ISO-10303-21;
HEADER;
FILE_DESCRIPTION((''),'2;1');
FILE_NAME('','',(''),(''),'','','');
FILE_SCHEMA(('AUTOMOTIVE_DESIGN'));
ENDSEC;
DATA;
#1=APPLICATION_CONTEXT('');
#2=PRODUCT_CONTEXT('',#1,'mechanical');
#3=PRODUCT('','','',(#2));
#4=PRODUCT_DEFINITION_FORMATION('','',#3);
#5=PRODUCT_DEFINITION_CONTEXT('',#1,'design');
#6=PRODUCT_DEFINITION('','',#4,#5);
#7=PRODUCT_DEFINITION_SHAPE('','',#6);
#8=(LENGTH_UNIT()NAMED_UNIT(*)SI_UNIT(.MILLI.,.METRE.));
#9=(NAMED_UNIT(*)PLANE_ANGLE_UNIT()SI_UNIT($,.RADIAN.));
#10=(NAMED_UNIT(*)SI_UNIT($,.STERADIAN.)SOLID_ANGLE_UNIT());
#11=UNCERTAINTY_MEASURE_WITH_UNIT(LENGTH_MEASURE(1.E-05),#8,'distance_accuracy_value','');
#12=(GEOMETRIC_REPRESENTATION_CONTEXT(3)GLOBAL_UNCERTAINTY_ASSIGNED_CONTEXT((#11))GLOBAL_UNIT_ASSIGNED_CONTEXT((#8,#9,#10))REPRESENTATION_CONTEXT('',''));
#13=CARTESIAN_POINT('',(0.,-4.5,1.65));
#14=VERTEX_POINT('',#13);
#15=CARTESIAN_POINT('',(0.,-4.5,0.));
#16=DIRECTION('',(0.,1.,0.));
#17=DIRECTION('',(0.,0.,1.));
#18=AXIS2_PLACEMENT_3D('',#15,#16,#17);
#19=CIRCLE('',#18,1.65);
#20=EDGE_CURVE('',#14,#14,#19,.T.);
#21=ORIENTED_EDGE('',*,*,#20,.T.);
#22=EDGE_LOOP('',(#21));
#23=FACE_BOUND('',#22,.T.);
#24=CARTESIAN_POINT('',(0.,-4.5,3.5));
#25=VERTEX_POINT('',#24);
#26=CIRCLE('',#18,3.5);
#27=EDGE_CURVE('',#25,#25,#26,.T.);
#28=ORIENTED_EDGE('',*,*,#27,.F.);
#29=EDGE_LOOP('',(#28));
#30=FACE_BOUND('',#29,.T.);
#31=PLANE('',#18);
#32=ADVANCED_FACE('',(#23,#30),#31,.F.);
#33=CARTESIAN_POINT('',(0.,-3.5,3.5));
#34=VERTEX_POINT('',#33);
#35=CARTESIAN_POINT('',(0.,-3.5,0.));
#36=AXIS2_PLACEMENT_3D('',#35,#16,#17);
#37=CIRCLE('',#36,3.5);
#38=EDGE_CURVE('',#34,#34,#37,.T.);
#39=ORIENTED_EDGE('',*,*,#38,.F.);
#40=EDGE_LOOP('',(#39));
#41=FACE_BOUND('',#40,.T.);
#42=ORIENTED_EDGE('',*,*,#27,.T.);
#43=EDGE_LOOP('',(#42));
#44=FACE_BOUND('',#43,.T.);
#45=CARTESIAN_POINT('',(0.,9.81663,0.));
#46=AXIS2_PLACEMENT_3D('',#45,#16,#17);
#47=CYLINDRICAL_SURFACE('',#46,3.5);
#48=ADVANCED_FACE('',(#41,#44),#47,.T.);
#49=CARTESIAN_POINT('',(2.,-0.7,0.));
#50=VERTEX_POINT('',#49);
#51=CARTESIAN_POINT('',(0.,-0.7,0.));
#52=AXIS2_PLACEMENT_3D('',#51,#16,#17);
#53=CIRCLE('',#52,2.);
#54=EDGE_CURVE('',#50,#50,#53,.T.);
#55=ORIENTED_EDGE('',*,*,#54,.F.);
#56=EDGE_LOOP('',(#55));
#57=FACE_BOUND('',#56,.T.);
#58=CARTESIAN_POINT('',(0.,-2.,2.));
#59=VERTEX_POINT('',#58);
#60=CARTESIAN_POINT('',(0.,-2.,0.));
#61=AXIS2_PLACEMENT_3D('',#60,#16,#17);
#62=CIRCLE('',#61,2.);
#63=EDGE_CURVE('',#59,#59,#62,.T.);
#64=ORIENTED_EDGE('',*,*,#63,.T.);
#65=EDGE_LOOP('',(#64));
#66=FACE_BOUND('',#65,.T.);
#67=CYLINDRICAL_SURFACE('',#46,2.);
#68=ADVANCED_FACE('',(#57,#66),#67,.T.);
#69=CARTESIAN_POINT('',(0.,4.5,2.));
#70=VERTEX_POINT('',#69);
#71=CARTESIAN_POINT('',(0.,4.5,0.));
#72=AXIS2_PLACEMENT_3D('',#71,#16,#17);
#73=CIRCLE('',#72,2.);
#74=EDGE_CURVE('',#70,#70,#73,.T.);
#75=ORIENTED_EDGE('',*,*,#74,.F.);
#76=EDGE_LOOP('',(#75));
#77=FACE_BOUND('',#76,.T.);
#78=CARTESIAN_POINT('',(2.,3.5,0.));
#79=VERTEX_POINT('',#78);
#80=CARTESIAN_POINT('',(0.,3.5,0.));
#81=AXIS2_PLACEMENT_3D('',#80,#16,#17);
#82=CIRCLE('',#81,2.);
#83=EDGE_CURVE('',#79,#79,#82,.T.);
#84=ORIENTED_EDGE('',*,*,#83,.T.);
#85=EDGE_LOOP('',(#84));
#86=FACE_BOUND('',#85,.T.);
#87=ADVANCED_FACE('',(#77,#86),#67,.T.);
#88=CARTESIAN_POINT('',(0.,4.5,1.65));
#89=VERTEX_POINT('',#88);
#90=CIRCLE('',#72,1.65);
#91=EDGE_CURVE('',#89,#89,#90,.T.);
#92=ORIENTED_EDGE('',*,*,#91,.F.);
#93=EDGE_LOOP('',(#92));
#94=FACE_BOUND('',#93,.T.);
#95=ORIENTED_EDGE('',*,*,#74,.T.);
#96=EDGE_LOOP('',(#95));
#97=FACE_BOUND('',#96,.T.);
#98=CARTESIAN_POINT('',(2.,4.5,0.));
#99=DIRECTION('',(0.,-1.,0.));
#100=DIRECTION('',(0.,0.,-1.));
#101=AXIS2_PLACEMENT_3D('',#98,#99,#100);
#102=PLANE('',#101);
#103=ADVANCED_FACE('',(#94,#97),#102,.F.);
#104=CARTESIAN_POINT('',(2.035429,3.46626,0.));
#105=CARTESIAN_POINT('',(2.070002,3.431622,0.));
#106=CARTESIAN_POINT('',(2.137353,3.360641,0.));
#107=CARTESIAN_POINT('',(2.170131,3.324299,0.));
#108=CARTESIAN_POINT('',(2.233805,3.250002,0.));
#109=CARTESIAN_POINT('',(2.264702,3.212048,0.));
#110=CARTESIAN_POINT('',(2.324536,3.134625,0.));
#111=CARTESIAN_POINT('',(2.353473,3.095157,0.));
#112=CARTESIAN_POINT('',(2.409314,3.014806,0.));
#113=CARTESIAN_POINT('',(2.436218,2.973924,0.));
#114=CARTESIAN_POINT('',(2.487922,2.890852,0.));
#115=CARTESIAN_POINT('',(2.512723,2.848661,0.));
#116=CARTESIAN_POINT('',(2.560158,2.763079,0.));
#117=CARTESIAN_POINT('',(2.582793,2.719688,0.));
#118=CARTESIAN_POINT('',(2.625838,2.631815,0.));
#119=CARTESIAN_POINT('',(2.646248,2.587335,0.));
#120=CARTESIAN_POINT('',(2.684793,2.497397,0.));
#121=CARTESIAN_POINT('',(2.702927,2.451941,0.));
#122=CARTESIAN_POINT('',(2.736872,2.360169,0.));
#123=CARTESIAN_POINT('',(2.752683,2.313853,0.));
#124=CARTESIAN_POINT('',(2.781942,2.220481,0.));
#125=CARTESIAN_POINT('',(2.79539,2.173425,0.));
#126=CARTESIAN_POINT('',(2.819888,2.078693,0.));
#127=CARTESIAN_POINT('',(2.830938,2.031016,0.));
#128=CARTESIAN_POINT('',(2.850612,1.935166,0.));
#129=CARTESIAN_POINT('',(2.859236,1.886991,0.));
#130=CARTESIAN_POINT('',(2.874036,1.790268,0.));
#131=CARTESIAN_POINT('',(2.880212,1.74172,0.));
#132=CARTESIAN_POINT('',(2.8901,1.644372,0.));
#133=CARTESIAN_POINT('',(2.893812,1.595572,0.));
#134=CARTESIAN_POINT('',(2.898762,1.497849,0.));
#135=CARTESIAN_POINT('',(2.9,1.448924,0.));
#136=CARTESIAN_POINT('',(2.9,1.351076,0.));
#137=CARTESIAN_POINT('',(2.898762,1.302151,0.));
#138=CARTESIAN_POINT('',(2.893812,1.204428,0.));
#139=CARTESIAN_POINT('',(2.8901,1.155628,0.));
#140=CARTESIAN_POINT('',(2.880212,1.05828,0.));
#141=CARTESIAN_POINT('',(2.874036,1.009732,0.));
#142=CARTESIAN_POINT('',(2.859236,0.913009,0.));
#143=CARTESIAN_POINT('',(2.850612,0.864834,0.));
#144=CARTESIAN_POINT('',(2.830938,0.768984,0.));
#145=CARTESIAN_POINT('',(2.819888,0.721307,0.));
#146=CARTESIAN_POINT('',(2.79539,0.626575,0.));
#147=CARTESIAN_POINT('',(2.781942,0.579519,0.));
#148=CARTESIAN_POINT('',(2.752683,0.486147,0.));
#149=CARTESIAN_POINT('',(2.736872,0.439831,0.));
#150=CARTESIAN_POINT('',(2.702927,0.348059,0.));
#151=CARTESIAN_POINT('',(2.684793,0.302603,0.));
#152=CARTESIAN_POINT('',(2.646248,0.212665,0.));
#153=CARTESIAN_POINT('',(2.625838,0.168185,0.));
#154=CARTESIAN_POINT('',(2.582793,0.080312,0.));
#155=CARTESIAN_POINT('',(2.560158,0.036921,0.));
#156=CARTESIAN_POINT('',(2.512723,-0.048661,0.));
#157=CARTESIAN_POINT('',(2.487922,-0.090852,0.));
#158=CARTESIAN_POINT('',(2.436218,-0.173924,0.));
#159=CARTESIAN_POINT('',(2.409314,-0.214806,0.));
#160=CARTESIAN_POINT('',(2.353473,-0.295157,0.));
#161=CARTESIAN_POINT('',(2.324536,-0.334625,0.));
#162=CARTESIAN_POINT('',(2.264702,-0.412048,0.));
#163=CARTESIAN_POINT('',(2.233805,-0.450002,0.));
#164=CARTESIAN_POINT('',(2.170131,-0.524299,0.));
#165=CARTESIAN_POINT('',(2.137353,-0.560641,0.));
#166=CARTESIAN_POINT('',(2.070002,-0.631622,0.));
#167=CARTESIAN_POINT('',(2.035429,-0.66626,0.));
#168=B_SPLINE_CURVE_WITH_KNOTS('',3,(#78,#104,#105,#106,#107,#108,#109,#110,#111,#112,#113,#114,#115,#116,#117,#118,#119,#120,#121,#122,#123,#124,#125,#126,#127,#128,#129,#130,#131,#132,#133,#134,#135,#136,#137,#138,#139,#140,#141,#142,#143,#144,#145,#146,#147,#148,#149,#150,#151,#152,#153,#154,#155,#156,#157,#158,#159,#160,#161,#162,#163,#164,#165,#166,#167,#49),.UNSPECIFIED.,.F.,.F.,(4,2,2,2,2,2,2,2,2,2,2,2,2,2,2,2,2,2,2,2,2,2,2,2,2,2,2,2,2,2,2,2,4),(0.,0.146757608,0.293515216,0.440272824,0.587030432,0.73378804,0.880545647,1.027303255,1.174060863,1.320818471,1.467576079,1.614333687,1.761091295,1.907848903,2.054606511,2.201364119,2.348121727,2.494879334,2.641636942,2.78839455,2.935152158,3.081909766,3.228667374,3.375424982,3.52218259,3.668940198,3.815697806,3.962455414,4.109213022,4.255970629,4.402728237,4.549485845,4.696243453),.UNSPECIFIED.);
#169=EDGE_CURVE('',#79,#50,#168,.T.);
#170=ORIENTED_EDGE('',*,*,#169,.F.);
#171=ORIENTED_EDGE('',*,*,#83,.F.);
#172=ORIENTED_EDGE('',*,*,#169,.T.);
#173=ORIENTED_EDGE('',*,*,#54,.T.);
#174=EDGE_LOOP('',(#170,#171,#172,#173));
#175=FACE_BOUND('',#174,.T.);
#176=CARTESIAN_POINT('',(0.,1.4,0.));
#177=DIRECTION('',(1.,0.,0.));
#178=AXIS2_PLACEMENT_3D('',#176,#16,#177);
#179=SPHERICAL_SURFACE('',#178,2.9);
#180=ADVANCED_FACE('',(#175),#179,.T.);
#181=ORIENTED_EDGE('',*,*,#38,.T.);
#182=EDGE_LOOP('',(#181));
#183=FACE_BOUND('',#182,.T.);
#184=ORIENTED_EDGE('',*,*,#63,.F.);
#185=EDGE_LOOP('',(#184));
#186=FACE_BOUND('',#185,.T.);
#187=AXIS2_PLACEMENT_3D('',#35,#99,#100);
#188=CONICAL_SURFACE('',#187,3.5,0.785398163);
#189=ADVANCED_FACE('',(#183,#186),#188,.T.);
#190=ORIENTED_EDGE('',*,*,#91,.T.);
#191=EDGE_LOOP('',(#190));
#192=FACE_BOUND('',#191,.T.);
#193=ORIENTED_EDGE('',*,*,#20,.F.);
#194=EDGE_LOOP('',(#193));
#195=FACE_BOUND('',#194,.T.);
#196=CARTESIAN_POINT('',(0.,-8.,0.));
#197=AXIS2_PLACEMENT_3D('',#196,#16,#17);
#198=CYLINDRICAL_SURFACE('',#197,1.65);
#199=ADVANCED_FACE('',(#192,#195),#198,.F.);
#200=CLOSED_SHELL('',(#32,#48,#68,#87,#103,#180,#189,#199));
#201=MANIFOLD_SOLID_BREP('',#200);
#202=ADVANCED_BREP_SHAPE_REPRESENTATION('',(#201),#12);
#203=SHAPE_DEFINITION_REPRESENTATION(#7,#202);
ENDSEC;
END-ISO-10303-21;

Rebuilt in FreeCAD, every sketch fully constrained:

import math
import FreeCAD as App
import Part
import Sketcher

V = App.Vector
Q = App.Units.Quantity

doc = App.newDocument("Part")
params = doc.addObject("Spreadsheet::Sheet", "Params")
for row, (alias, value) in enumerate([
    ("sketch1_radius", "2.9 mm"),
    ("sketch1_width", "2 mm"),
    ("sketch1_height", "9 mm"),
    ("sketch1_height2", "1 mm"),
    ("sketch1_width2", "3.5 mm"),
    ("revolution_angle", "360 deg"),
    ("sketch2_diameter", "3.3 mm"),
    ("pocket1_length", "12.5 mm"),
], start=1):
    params.set(f"A{row}", alias)
    params.set(f"B{row}", "=" + value)
    params.setAlias(f"B{row}", alias)

body = doc.addObject("PartDesign::Body", "Body")

sketch1 = body.newObject("Sketcher::SketchObject", "Sketch")
sketch1.AttachmentSupport = (doc.getObject("XY_Plane"), [""])
sketch1.MapMode = "FlatFace"
sketch1.addGeometry([
    Part.LineSegment(V(0, 4.5, 0), V(0, -4.5, 0)),
    Part.LineSegment(V(0, -4.5, 0), V(3.5, -4.5, 0)),
    Part.LineSegment(V(3.5, -4.5, 0), V(3.5, -3.5, 0)),
    Part.LineSegment(V(3.5, -3.5, 0), V(2, -2, 0)),
    Part.LineSegment(V(2, -2, 0), V(2, -0.7, 0)),
    Part.ArcOfCircle(Part.Circle(V(0, 1.4, 0), V(0, 0, 1), 2.9), math.radians(-46), math.radians(46)),
    Part.LineSegment(V(2, 3.5, 0), V(2, 4.5, 0)),
    Part.LineSegment(V(2, 4.5, 0), V(0, 4.5, 0)),
], False)
sketch1.addConstraint([
    Sketcher.Constraint("Coincident", 0, 2, 1, 1),
    Sketcher.Constraint("Coincident", 1, 2, 2, 1),
    Sketcher.Constraint("Coincident", 2, 2, 3, 1),
    Sketcher.Constraint("Coincident", 3, 2, 4, 1),
    Sketcher.Constraint("Coincident", 4, 2, 5, 1),
    Sketcher.Constraint("Coincident", 5, 2, 6, 1),
    Sketcher.Constraint("Coincident", 6, 2, 7, 1),
    Sketcher.Constraint("Coincident", 7, 2, 0, 1),
    Sketcher.Constraint("Vertical", 0),
    Sketcher.Constraint("Horizontal", 1),
    Sketcher.Constraint("Vertical", 2),
    Sketcher.Constraint("Vertical", 4),
    Sketcher.Constraint("Vertical", 6),
    Sketcher.Constraint("Horizontal", 7),
    Sketcher.Constraint("Symmetric", 0, 2, 7, 2, -1, 1),
    Sketcher.Constraint("PointOnObject", 5, 3, -2),
    Sketcher.Constraint("Vertical", 4, 2, 5, 2),
    Sketcher.Constraint("Equal", 2, 6),
    Sketcher.Constraint("Radius", 5, Q("2.9 mm")),
    Sketcher.Constraint("DistanceX", 7, 2, 7, 1, Q("2 mm")),
    Sketcher.Constraint("DistanceY", 0, 2, 0, 1, Q("9 mm")),
    Sketcher.Constraint("DistanceY", 2, 1, 2, 2, Q("1 mm")),
    Sketcher.Constraint("Angle", 3, Q("135 deg")),
    Sketcher.Constraint("DistanceX", 1, 1, 1, 2, Q("3.5 mm")),
])
sketch1.setExpression("Constraints[18]", "Params.sketch1_radius")
sketch1.setExpression("Constraints[19]", "Params.sketch1_width")
sketch1.setExpression("Constraints[20]", "Params.sketch1_height")
sketch1.setExpression("Constraints[21]", "Params.sketch1_height2")
sketch1.setExpression("Constraints[23]", "Params.sketch1_width2")
revolution = body.newObject("PartDesign::Revolution", "Revolution")
revolution.Profile = sketch1
revolution.ReferenceAxis = (sketch1, ["V_Axis"])
revolution.setExpression("Angle", "Params.revolution_angle")

sketch2 = body.newObject("Sketcher::SketchObject", "Sketch001")
sketch2.AttachmentSupport = (doc.getObject("XZ_Plane"), [""])
sketch2.MapMode = "FlatFace"
sketch2.AttachmentOffset = App.Placement(V(0, 0, -4.5), App.Rotation())
sketch2.addGeometry(Part.Circle(V(0, 0, 0), V(0, 0, 1), 1.6), False)
sketch2.addConstraint([
    Sketcher.Constraint("Coincident", 0, 3, -1, 1),
    Sketcher.Constraint("Diameter", 0, Q("3.3 mm")),
])
sketch2.setExpression("Constraints[1]", "Params.sketch2_diameter")
pocket1 = body.newObject("PartDesign::Pocket", "Pocket")
pocket1.Profile = sketch2
pocket1.setExpression("Length", "Params.pocket1_length")
pocket1.Reversed = True

doc.recompute()
